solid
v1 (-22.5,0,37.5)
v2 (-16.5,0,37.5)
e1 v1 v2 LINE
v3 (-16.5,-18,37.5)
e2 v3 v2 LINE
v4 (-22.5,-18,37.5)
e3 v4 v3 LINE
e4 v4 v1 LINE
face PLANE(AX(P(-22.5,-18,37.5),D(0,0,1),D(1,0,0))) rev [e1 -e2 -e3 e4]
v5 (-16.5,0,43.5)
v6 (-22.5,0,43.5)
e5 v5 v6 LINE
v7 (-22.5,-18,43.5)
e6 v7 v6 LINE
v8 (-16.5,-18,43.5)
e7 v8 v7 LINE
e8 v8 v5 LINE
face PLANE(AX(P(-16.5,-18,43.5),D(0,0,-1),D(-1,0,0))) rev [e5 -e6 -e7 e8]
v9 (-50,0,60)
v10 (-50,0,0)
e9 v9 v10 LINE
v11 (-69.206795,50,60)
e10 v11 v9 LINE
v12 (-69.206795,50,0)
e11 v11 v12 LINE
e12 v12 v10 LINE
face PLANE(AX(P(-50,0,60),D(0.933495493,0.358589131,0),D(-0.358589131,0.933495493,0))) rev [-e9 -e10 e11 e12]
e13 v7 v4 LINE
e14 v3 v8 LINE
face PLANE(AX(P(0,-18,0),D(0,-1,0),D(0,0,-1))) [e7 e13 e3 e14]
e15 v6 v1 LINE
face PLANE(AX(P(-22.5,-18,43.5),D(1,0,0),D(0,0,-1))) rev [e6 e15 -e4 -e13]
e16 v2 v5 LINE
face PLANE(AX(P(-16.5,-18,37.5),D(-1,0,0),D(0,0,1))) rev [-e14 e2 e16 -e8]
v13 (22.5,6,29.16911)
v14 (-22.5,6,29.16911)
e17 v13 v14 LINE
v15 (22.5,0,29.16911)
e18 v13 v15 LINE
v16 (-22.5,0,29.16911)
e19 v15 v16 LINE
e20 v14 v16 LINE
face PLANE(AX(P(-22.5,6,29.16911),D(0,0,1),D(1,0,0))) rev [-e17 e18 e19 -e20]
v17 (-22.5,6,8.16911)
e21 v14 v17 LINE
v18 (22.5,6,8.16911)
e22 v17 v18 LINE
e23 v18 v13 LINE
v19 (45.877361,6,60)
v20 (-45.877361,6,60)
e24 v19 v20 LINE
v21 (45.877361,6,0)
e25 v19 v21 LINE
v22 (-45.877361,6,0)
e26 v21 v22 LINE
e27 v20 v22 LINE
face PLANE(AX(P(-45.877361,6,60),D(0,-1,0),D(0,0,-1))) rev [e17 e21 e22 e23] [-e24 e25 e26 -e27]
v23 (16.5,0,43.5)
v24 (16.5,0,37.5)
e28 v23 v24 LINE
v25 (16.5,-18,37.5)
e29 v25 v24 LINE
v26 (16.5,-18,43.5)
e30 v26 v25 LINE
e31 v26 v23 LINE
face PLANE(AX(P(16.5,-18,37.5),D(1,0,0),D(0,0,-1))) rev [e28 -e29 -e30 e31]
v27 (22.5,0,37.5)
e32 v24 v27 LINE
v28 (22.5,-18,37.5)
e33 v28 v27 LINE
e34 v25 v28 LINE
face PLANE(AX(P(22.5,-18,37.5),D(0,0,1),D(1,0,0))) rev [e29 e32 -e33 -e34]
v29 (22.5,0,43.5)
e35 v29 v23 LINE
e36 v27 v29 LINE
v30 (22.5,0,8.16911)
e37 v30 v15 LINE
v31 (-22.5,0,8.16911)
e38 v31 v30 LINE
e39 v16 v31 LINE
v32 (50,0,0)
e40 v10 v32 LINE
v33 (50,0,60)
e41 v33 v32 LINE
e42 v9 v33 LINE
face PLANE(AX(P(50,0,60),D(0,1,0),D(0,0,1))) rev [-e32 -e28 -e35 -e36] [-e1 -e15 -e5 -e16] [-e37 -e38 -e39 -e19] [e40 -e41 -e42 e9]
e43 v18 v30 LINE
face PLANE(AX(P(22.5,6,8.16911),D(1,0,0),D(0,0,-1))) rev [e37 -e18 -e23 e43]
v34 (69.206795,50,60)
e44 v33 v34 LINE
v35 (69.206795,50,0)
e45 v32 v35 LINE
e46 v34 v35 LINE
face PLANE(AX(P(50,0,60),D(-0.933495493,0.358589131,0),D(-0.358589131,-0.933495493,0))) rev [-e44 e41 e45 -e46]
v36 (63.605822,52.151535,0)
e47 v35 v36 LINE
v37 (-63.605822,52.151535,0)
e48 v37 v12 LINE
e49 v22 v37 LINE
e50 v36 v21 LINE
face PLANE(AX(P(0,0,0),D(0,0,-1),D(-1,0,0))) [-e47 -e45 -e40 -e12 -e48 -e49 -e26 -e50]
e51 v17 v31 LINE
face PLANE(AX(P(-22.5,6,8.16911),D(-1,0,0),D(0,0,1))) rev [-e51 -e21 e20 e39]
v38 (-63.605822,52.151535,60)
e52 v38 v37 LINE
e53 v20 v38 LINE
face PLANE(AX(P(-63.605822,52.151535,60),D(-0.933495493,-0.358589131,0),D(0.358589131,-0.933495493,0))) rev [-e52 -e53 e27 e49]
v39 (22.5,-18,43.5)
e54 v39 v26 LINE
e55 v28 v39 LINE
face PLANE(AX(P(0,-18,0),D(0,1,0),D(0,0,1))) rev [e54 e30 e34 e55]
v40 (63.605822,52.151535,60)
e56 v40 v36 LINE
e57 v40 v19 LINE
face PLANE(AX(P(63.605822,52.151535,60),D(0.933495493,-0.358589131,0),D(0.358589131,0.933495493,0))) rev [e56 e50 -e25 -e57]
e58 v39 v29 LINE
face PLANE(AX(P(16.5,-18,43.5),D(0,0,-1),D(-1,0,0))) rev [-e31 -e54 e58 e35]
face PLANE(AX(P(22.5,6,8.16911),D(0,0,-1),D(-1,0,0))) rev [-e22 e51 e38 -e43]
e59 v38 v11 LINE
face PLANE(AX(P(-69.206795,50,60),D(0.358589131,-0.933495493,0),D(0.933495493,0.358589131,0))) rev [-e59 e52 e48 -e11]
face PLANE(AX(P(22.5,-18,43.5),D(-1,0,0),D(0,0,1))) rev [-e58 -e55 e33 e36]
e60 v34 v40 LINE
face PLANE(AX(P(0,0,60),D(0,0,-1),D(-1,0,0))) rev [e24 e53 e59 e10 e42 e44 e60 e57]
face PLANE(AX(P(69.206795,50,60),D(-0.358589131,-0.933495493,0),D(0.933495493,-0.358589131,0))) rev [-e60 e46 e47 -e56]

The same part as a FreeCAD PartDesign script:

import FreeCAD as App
import Part
import Sketcher
from FreeCAD import Vector
Q = App.Units.Quantity

doc = App.newDocument("Part")
params = doc.addObject("Spreadsheet::Sheet", "Params")
for row, (alias, value) in enumerate([
    ("sketch1_width", "100 mm"),
    ("sketch1_length", "6 mm"),
    ("pad1_length", "60 mm"),
    ("sketch2_width", "45 mm"),
    ("sketch2_height", "21 mm"),
    ("pocket1_length", "6 mm"),
    ("sketch3_width", "6 mm"),
    ("pad2_length", "18 mm"),
], start=1):
    params.set(f"A{row}", alias)
    params.set(f"B{row}", "=" + value)
    params.setAlias(f"B{row}", alias)

body = doc.addObject("PartDesign::Body", "Body")

sketch1 = body.newObject("Sketcher::SketchObject", "Sketch")
sketch1.AttachmentSupport = (doc.getObject("XY_Plane"), [""])
sketch1.MapMode = "FlatFace"
sketch1.addGeometry([
    Part.LineSegment(Vector(-50, 0, 0), Vector(50, 0, 0)),
    Part.LineSegment(Vector(50, 0, 0), Vector(69.206795, 50, 0)),
    Part.LineSegment(Vector(69.206795, 50, 0), Vector(63.605822, 52.151535, 0)),
    Part.LineSegment(Vector(63.605822, 52.151535, 0), Vector(45.877361, 6, 0)),
    Part.LineSegment(Vector(45.877361, 6, 0), Vector(-45.877361, 6, 0)),
    Part.LineSegment(Vector(-45.877361, 6, 0), Vector(-63.605822, 52.151535, 0)),
    Part.LineSegment(Vector(-63.605822, 52.151535, 0), Vector(-69.206795, 50, 0)),
    Part.LineSegment(Vector(-69.206795, 50, 0), Vector(-50, 0, 0)),
], False)
sketch1.addConstraint([
    Sketcher.Constraint("Coincident", 0, 2, 1, 1),
    Sketcher.Constraint("Coincident", 1, 2, 2, 1),
    Sketcher.Constraint("Coincident", 2, 2, 3, 1),
    Sketcher.Constraint("Coincident", 3, 2, 4, 1),
    Sketcher.Constraint("Coincident", 4, 2, 5, 1),
    Sketcher.Constraint("Coincident", 5, 2, 6, 1),
    Sketcher.Constraint("Coincident", 6, 2, 7, 1),
    Sketcher.Constraint("Coincident", 7, 2, 0, 1),
    Sketcher.Constraint("Horizontal", 0),
    Sketcher.Constraint("Horizontal", 4),
    Sketcher.Constraint("Symmetric", 0, 2, 7, 2, -1, 1),
    Sketcher.Constraint("Symmetric", 2, 2, 5, 2, -2),
    Sketcher.Constraint("Symmetric", 1, 2, 6, 2, -2),
    Sketcher.Constraint("Perpendicular", 1, 2),
    Sketcher.Constraint("Perpendicular", 2, 3),
    Sketcher.Constraint("Perpendicular", 5, 6),
    Sketcher.Constraint("DistanceX", 0, 1, 0, 2, Q("100 mm")),
    Sketcher.Constraint("Distance", 2, Q("6 mm")),
    Sketcher.Constraint("DistanceY", -1, 1, 1, 2, Q("50 mm")),
    Sketcher.Constraint("DistanceY", -1, 1, 3, 2, Q("6 mm")),
    Sketcher.Constraint("DistanceX", 4, 2, 4, 1, Q("91.754721 mm")),
])
sketch1.setExpression("Constraints[16]", "Params.sketch1_width")
sketch1.setExpression("Constraints[17]", "Params.sketch1_length")
pad1 = body.newObject("PartDesign::Pad", "Pad")
pad1.Profile = sketch1
pad1.setExpression("Length", "Params.pad1_length")

sketch2 = body.newObject("Sketcher::SketchObject", "Sketch001")
sketch2.AttachmentSupport = (doc.getObject("XZ_Plane"), [""])
sketch2.MapMode = "FlatFace"
sketch2.addGeometry([
    Part.LineSegment(Vector(-22.5, 29.16911, 0), Vector(-22.5, 8.16911, 0)),
    Part.LineSegment(Vector(-22.5, 8.16911, 0), Vector(22.5, 8.16911, 0)),
    Part.LineSegment(Vector(22.5, 8.16911, 0), Vector(22.5, 29.16911, 0)),
    Part.LineSegment(Vector(22.5, 29.16911, 0), Vector(-22.5, 29.16911, 0)),
], False)
sketch2.addConstraint([
    Sketcher.Constraint("Coincident", 0, 2, 1, 1),
    Sketcher.Constraint("Coincident", 1, 2, 2, 1),
    Sketcher.Constraint("Coincident", 2, 2, 3, 1),
    Sketcher.Constraint("Coincident", 3, 2, 0, 1),
    Sketcher.Constraint("Vertical", 0),
    Sketcher.Constraint("Horizontal", 1),
    Sketcher.Constraint("Vertical", 2),
    Sketcher.Constraint("Horizontal", 3),
    Sketcher.Constraint("DistanceX", 1, 1, 1, 2, Q("45 mm")),
    Sketcher.Constraint("DistanceY", 0, 2, 0, 1, Q("21 mm")),
    Sketcher.Constraint("DistanceX", 0, 2, -1, 1, Q("22.5 mm")),
    Sketcher.Constraint("DistanceY", -1, 1, 0, 2, Q("8.16911 mm")),
])
sketch2.setExpression("Constraints[8]", "Params.sketch2_width")
sketch2.setExpression("Constraints[9]", "Params.sketch2_height")
pocket1 = body.newObject("PartDesign::Pocket", "Pocket")
pocket1.Profile = sketch2
pocket1.setExpression("Length", "Params.pocket1_length")

sketch3 = body.newObject("Sketcher::SketchObject", "Sketch002")
sketch3.AttachmentSupport = (doc.getObject("XZ_Plane"), [""])
sketch3.MapMode = "FlatFace"
sketch3.addGeometry([
    Part.LineSegment(Vector(-22.5, 43.5, 0), Vector(-22.5, 37.5, 0)),
    Part.LineSegment(Vector(-22.5, 37.5, 0), Vector(-16.5, 37.5, 0)),
    Part.LineSegment(Vector(-16.5, 37.5, 0), Vector(-16.5, 43.5, 0)),
    Part.LineSegment(Vector(-16.5, 43.5, 0), Vector(-22.5, 43.5, 0)),
    Part.LineSegment(Vector(16.5, 43.5, 0), Vector(16.5, 37.5, 0)),
    Part.LineSegment(Vector(16.5, 37.5, 0), Vector(22.5, 37.5, 0)),
    Part.LineSegment(Vector(22.5, 37.5, 0), Vector(22.5, 43.5, 0)),
    Part.LineSegment(Vector(22.5, 43.5, 0), Vector(16.5, 43.5, 0)),
], False)
sketch3.addConstraint([
    Sketcher.Constraint("Coincident", 0, 2, 1, 1),
    Sketcher.Constraint("Coincident", 1, 2, 2, 1),
    Sketcher.Constraint("Coincident", 2, 2, 3, 1),
    Sketcher.Constraint("Coincident", 3, 2, 0, 1),
    Sketcher.Constraint("Coincident", 4, 2, 5, 1),
    Sketcher.Constraint("Coincident", 5, 2, 6, 1),
    Sketcher.Constraint("Coincident", 6, 2, 7, 1),
    Sketcher.Constraint("Coincident", 7, 2, 4, 1),
    Sketcher.Constraint("Vertical", 0),
    Sketcher.Constraint("Horizontal", 1),
    Sketcher.Constraint("Vertical", 2),
    Sketcher.Constraint("Horizontal", 3),
    Sketcher.Constraint("Vertical", 4),
    Sketcher.Constraint("Horizontal", 5),
    Sketcher.Constraint("Vertical", 6),
    Sketcher.Constraint("Horizontal", 7),
    Sketcher.Constraint("Symmetric", 1, 2, 4, 2, -2),
    Sketcher.Constraint("Symmetric", 3, 2, 6, 2, -2),
    Sketcher.Constraint("Equal", 7, 0),
    Sketcher.Constraint("DistanceX", 1, 1, 1, 2, Q("6 mm")),
    Sketcher.Constraint("DistanceX", 1, 2, 4, 2, Q("33 mm")),
    Sketcher.Constraint("DistanceY", -1, 1, 0, 2, Q("37.5 mm")),
])
sketch3.setExpression("Constraints[19]", "Params.sketch3_width")
pad2 = body.newObject("PartDesign::Pad", "Pad001")
pad2.Profile = sketch3
pad2.setExpression("Length", "Params.pad2_length")

doc.recompute()
